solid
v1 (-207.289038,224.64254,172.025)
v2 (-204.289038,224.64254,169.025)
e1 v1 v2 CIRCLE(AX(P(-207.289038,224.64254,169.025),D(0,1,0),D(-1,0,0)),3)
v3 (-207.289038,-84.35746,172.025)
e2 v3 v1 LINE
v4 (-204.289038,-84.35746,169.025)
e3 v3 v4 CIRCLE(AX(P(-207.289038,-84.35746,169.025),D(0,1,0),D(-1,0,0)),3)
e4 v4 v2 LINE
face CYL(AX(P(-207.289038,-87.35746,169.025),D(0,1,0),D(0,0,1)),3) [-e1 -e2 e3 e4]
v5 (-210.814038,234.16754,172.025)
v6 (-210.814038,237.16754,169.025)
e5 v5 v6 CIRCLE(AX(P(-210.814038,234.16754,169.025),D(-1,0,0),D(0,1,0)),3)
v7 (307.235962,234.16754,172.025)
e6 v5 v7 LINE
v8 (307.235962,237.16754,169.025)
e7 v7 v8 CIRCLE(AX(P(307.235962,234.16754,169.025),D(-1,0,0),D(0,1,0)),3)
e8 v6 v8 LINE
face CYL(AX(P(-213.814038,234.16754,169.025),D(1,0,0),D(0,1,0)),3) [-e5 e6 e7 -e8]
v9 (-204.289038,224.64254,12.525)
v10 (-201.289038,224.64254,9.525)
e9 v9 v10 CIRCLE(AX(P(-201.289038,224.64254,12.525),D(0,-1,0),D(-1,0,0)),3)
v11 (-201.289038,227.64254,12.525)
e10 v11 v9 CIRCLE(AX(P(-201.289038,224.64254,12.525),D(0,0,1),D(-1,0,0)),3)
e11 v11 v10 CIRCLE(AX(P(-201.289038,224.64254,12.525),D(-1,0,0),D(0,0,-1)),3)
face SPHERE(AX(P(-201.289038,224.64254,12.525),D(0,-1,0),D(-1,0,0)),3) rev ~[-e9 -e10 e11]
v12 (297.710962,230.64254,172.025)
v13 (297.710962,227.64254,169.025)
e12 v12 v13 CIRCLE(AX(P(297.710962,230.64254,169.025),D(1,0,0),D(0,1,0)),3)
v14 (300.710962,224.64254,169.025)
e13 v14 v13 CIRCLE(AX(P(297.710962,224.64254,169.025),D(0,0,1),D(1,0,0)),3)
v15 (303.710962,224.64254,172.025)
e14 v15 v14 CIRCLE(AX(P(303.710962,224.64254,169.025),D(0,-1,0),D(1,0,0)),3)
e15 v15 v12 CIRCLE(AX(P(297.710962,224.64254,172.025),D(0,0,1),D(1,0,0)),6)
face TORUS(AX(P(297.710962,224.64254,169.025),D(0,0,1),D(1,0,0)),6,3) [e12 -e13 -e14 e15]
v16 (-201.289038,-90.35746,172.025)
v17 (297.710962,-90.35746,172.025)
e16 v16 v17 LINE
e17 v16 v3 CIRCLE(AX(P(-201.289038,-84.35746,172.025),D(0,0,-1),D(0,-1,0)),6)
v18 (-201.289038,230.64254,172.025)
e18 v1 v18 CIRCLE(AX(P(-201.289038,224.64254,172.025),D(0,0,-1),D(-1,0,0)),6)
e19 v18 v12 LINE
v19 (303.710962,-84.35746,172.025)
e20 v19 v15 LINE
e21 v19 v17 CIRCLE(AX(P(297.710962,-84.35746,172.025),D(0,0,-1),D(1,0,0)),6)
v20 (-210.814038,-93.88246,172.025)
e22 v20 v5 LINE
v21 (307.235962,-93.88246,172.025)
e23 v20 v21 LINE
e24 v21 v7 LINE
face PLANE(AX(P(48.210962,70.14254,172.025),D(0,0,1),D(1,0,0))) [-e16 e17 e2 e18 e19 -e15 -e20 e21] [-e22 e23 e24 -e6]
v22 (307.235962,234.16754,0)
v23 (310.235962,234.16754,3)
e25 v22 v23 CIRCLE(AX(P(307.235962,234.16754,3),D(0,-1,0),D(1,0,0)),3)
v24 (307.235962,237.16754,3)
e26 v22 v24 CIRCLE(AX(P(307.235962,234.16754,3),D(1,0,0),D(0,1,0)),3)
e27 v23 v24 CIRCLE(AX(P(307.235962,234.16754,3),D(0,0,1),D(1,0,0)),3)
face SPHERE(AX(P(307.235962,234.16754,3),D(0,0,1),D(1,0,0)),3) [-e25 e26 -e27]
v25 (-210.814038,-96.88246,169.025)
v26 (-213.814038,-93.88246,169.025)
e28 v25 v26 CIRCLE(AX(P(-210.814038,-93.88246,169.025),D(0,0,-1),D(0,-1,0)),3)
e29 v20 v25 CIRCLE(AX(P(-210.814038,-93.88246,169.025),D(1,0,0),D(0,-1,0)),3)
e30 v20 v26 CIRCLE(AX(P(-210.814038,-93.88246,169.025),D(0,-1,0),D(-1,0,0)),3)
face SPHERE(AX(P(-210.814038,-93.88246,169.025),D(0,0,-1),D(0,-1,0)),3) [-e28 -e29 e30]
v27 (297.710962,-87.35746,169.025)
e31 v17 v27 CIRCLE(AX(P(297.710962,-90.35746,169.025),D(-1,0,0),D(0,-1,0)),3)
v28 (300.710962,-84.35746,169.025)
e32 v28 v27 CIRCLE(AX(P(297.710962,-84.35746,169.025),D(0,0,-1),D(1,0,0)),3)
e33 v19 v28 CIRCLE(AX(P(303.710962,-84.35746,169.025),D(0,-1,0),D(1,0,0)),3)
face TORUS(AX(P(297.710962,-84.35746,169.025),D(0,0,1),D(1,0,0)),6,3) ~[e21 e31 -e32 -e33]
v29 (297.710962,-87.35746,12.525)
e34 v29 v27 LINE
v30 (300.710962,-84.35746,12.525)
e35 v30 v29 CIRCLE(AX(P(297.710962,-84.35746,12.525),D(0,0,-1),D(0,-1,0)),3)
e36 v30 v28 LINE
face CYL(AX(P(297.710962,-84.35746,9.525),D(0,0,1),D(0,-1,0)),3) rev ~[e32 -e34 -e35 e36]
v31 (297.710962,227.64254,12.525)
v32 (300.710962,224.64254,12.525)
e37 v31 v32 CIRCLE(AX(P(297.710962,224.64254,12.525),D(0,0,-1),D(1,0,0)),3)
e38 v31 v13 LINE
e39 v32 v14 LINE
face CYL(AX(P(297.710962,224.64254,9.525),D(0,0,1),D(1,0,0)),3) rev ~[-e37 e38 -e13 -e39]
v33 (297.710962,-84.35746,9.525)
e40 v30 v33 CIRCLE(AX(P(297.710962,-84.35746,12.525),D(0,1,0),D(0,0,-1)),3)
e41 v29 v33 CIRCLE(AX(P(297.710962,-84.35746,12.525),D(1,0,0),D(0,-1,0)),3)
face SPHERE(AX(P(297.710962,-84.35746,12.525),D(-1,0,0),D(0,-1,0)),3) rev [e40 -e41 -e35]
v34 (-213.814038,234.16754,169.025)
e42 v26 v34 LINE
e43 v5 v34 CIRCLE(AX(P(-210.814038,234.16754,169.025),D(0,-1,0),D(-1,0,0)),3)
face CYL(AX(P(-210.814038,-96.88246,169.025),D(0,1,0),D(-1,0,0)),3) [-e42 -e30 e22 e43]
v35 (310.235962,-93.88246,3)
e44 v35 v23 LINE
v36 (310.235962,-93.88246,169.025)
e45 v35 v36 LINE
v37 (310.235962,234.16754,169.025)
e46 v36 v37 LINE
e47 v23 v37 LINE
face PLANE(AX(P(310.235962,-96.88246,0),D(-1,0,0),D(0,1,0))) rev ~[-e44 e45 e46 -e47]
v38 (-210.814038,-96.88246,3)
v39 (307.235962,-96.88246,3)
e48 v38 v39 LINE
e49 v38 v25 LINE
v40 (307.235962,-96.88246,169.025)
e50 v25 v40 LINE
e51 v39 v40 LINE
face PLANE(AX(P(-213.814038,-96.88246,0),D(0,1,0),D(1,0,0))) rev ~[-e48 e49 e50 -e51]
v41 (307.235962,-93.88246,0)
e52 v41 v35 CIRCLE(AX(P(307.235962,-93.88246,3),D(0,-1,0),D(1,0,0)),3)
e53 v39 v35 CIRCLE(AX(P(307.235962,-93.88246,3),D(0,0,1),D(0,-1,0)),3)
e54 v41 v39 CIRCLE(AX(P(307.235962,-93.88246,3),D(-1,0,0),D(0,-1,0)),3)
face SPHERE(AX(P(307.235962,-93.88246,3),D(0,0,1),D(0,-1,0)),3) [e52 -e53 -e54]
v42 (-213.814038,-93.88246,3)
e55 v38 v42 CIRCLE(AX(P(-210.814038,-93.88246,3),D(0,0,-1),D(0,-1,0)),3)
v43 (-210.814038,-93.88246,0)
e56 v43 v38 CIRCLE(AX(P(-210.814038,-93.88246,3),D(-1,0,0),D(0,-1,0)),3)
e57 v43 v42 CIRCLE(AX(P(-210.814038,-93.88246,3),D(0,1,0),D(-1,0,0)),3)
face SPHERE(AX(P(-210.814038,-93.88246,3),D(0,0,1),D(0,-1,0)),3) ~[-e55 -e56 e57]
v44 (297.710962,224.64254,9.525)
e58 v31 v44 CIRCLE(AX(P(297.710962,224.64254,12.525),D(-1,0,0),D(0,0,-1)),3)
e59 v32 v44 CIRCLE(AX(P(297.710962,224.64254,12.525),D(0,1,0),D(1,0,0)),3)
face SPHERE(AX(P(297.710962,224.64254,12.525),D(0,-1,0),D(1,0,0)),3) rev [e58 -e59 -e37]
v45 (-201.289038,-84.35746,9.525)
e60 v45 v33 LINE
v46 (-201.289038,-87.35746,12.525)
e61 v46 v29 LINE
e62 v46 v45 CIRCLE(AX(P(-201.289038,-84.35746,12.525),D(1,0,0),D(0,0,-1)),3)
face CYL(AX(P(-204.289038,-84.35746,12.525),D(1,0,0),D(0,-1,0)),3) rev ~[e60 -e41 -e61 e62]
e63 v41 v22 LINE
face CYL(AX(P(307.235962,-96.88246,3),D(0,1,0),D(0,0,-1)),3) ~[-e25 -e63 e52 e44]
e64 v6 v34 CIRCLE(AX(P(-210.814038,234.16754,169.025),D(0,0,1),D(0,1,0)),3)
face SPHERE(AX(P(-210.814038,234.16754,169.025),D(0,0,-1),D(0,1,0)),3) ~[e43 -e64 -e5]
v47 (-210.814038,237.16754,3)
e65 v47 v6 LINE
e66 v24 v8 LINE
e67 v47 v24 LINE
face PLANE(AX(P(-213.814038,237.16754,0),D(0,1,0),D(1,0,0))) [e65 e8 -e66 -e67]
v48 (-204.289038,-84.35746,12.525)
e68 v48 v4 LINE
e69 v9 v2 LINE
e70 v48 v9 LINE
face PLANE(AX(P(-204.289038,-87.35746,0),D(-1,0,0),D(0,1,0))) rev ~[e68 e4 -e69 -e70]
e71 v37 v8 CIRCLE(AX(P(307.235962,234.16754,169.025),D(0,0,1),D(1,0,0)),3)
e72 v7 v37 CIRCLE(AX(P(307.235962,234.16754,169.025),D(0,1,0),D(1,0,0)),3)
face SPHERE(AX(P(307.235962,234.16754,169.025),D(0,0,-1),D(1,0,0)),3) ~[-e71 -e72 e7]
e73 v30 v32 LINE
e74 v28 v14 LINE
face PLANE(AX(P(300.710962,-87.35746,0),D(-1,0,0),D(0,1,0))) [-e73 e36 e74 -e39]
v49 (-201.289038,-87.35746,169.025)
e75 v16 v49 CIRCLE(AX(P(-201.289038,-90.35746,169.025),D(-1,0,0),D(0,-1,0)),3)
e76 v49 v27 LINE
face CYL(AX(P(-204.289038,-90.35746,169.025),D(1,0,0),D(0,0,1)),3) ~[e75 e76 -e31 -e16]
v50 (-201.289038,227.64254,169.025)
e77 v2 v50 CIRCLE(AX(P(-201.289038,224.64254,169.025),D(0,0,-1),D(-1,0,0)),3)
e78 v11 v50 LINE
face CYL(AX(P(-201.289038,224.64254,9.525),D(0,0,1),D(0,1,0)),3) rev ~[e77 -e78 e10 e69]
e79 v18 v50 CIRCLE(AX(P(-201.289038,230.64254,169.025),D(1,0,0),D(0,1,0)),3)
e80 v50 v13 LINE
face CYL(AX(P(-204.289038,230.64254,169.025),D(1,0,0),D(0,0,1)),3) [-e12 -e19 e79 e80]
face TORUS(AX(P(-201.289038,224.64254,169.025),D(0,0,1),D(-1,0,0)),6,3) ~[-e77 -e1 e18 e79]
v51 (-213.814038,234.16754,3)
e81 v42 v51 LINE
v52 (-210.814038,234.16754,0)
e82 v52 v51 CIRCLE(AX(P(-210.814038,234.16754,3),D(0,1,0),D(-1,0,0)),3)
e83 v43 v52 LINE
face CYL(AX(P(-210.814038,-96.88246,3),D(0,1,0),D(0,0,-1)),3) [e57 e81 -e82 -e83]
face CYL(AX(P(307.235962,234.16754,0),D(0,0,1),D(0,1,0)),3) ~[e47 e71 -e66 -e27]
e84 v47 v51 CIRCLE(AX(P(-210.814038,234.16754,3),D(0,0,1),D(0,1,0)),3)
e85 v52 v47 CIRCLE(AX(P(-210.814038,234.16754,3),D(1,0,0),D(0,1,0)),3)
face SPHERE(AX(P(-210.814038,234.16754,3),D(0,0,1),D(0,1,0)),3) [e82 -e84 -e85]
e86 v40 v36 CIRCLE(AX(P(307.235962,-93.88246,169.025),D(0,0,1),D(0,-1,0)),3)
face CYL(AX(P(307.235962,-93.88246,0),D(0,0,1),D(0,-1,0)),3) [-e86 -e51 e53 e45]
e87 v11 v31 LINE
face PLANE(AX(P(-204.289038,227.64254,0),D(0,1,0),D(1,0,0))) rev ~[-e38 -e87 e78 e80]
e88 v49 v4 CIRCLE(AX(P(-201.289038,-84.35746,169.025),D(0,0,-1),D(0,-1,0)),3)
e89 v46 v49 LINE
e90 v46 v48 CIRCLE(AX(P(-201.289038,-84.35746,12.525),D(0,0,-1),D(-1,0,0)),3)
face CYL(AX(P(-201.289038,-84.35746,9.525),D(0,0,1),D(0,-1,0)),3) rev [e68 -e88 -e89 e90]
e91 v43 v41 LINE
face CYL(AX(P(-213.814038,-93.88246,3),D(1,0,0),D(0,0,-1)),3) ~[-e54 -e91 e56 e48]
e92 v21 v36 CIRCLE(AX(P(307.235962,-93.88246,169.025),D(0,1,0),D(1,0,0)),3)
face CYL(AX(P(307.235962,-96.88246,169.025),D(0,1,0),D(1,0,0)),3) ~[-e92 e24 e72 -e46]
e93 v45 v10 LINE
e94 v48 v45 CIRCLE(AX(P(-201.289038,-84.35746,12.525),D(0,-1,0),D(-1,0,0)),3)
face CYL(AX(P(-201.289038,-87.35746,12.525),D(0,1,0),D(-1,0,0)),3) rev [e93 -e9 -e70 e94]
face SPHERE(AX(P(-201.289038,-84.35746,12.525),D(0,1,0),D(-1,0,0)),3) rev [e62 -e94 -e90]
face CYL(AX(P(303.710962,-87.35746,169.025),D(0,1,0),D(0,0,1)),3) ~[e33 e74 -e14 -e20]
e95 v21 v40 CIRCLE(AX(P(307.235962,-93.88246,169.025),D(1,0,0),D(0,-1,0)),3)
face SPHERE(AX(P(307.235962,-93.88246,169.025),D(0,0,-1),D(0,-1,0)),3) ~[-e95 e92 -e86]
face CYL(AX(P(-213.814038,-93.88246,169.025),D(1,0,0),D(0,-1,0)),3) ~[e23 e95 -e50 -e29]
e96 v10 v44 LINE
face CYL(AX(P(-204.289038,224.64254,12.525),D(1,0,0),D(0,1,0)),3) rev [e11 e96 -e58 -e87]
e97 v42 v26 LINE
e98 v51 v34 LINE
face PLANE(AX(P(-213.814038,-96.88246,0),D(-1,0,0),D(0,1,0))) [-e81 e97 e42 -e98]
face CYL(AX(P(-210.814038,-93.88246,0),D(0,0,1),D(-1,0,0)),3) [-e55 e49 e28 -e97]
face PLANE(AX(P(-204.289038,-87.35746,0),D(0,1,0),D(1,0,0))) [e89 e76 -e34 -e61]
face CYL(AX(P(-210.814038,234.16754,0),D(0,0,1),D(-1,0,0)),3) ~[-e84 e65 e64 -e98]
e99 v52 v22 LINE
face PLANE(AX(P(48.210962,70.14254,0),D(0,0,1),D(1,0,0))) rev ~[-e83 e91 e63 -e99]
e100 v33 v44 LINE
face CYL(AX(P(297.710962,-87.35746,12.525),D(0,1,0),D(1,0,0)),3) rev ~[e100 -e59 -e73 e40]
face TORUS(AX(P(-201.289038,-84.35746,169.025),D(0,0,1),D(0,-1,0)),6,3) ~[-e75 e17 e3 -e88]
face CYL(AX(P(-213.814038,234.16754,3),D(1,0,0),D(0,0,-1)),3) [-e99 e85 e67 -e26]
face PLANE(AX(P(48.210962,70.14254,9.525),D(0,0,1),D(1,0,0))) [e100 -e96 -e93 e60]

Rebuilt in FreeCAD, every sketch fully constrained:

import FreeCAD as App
import Part
import Sketcher


def add_polygon(sketch, points):
    """Adds a closed chain of lines whose ends are joined by coincident constraints."""
    first, n = sketch.GeometryCount, len(points)
    for a, b in zip(points, points[1:] + points[:1]):
        sketch.addGeometry(Part.LineSegment(App.Vector(*a, 0), App.Vector(*b, 0)), False)
    for i in range(n):
        sketch.addConstraint(Sketcher.Constraint("Coincident", first + i, 2, first + (i + 1) % n, 1))

doc = App.newDocument("Part")
params = doc.addObject("Spreadsheet::Sheet", "Params")
for row, (alias, value) in enumerate([
    ("sketch1_width", "505 mm"),
    ("sketch1_height", "315 mm"),
    ("sketch1_width2", "524.05 mm"),
    ("sketch1_height2", "334.05 mm"),
    ("pad1_length", "172.025 mm"),
    ("sketch2_width", "505 mm"),
    ("sketch2_height", "315 mm"),
    ("pad2_length", "9.525 mm"),
    ("fillet_radius", "3 mm"),
], start=1):
    params.set(f"A{row}", alias)
    params.set(f"B{row}", "=" + value)
    params.setAlias(f"B{row}", alias)

body = doc.addObject("PartDesign::Body", "Body")

# Sketch on XY plane
sketch1 = body.newObject("Sketcher::SketchObject", "Sketch")
sketch1.AttachmentSupport = (doc.getObject("XY_Plane"), [""])
sketch1.MapMode = "FlatFace"
add_polygon(sketch1, [(-214, 237), (-214, -97), (310, -97), (310, 237)])  # lines 0-3
add_polygon(sketch1, [(301, -87), (-204, -87), (-204, 228), (301, 228)])  # lines 4-7
sketch1.addConstraint([
    Sketcher.Constraint("Vertical", 0),
    Sketcher.Constraint("Horizontal", 1),
    Sketcher.Constraint("Vertical", 2),
    Sketcher.Constraint("Horizontal", 3),
    Sketcher.Constraint("Horizontal", 4),
    Sketcher.Constraint("Vertical", 5),
    Sketcher.Constraint("Horizontal", 6),
    Sketcher.Constraint("Vertical", 7),
    Sketcher.Constraint("DistanceX", 4, 2, 4, 1, 505.0),
    Sketcher.Constraint("DistanceY", 5, 1, 5, 2, 315.0),
    Sketcher.Constraint("DistanceX", 1, 1, 1, 2, 524.05),
    Sketcher.Constraint("DistanceY", 0, 2, 0, 1, 334.05),
    Sketcher.Constraint("DistanceX", 0, 2, 4, 2, 9.525),
    Sketcher.Constraint("DistanceY", 0, 2, 4, 2, 9.525),
    Sketcher.Constraint("DistanceX", 0, 2, -1, 1, 213.814038),
    Sketcher.Constraint("DistanceY", 0, 2, -1, 1, 96.88246),
])
sketch1.setExpression("Constraints[16]", "Params.sketch1_width")
sketch1.setExpression("Constraints[17]", "Params.sketch1_height")
sketch1.setExpression("Constraints[18]", "Params.sketch1_width2")
sketch1.setExpression("Constraints[19]", "Params.sketch1_height2")
pad1 = body.newObject("PartDesign::Pad", "Pad")
pad1.Profile = sketch1
pad1.setExpression("Length", "Params.pad1_length")

# Sketch on XY plane
sketch2 = body.newObject("Sketcher::SketchObject", "Sketch001")
sketch2.AttachmentSupport = (doc.getObject("XY_Plane"), [""])
sketch2.MapMode = "FlatFace"
add_polygon(sketch2, [(-204, 228), (-204, -87), (301, -87), (301, 228)])  # lines 0-3
sketch2.addConstraint([
    Sketcher.Constraint("Vertical", 0),
    Sketcher.Constraint("Horizontal", 1),
    Sketcher.Constraint("Vertical", 2),
    Sketcher.Constraint("Horizontal", 3),
    Sketcher.Constraint("DistanceX", 1, 1, 1, 2, 505.0),
    Sketcher.Constraint("DistanceY", 0, 2, 0, 1, 315.0),
    Sketcher.Constraint("DistanceX", 0, 2, -1, 1, 204.289038),
    Sketcher.Constraint("DistanceY", 0, 2, -1, 1, 87.35746),
])
sketch2.setExpression("Constraints[8]", "Params.sketch2_width")
sketch2.setExpression("Constraints[9]", "Params.sketch2_height")
pad2 = body.newObject("PartDesign::Pad", "Pad001")
pad2.Profile = sketch2
pad2.setExpression("Length", "Params.pad2_length")
doc.recompute()

fillet = body.newObject("PartDesign::Fillet", "Fillet")
fillet.Base = (pad2, ["Edge1"])
fillet.UseAllEdges = True
fillet.setExpression("Radius", "Params.fillet_radius")

doc.recompute()
